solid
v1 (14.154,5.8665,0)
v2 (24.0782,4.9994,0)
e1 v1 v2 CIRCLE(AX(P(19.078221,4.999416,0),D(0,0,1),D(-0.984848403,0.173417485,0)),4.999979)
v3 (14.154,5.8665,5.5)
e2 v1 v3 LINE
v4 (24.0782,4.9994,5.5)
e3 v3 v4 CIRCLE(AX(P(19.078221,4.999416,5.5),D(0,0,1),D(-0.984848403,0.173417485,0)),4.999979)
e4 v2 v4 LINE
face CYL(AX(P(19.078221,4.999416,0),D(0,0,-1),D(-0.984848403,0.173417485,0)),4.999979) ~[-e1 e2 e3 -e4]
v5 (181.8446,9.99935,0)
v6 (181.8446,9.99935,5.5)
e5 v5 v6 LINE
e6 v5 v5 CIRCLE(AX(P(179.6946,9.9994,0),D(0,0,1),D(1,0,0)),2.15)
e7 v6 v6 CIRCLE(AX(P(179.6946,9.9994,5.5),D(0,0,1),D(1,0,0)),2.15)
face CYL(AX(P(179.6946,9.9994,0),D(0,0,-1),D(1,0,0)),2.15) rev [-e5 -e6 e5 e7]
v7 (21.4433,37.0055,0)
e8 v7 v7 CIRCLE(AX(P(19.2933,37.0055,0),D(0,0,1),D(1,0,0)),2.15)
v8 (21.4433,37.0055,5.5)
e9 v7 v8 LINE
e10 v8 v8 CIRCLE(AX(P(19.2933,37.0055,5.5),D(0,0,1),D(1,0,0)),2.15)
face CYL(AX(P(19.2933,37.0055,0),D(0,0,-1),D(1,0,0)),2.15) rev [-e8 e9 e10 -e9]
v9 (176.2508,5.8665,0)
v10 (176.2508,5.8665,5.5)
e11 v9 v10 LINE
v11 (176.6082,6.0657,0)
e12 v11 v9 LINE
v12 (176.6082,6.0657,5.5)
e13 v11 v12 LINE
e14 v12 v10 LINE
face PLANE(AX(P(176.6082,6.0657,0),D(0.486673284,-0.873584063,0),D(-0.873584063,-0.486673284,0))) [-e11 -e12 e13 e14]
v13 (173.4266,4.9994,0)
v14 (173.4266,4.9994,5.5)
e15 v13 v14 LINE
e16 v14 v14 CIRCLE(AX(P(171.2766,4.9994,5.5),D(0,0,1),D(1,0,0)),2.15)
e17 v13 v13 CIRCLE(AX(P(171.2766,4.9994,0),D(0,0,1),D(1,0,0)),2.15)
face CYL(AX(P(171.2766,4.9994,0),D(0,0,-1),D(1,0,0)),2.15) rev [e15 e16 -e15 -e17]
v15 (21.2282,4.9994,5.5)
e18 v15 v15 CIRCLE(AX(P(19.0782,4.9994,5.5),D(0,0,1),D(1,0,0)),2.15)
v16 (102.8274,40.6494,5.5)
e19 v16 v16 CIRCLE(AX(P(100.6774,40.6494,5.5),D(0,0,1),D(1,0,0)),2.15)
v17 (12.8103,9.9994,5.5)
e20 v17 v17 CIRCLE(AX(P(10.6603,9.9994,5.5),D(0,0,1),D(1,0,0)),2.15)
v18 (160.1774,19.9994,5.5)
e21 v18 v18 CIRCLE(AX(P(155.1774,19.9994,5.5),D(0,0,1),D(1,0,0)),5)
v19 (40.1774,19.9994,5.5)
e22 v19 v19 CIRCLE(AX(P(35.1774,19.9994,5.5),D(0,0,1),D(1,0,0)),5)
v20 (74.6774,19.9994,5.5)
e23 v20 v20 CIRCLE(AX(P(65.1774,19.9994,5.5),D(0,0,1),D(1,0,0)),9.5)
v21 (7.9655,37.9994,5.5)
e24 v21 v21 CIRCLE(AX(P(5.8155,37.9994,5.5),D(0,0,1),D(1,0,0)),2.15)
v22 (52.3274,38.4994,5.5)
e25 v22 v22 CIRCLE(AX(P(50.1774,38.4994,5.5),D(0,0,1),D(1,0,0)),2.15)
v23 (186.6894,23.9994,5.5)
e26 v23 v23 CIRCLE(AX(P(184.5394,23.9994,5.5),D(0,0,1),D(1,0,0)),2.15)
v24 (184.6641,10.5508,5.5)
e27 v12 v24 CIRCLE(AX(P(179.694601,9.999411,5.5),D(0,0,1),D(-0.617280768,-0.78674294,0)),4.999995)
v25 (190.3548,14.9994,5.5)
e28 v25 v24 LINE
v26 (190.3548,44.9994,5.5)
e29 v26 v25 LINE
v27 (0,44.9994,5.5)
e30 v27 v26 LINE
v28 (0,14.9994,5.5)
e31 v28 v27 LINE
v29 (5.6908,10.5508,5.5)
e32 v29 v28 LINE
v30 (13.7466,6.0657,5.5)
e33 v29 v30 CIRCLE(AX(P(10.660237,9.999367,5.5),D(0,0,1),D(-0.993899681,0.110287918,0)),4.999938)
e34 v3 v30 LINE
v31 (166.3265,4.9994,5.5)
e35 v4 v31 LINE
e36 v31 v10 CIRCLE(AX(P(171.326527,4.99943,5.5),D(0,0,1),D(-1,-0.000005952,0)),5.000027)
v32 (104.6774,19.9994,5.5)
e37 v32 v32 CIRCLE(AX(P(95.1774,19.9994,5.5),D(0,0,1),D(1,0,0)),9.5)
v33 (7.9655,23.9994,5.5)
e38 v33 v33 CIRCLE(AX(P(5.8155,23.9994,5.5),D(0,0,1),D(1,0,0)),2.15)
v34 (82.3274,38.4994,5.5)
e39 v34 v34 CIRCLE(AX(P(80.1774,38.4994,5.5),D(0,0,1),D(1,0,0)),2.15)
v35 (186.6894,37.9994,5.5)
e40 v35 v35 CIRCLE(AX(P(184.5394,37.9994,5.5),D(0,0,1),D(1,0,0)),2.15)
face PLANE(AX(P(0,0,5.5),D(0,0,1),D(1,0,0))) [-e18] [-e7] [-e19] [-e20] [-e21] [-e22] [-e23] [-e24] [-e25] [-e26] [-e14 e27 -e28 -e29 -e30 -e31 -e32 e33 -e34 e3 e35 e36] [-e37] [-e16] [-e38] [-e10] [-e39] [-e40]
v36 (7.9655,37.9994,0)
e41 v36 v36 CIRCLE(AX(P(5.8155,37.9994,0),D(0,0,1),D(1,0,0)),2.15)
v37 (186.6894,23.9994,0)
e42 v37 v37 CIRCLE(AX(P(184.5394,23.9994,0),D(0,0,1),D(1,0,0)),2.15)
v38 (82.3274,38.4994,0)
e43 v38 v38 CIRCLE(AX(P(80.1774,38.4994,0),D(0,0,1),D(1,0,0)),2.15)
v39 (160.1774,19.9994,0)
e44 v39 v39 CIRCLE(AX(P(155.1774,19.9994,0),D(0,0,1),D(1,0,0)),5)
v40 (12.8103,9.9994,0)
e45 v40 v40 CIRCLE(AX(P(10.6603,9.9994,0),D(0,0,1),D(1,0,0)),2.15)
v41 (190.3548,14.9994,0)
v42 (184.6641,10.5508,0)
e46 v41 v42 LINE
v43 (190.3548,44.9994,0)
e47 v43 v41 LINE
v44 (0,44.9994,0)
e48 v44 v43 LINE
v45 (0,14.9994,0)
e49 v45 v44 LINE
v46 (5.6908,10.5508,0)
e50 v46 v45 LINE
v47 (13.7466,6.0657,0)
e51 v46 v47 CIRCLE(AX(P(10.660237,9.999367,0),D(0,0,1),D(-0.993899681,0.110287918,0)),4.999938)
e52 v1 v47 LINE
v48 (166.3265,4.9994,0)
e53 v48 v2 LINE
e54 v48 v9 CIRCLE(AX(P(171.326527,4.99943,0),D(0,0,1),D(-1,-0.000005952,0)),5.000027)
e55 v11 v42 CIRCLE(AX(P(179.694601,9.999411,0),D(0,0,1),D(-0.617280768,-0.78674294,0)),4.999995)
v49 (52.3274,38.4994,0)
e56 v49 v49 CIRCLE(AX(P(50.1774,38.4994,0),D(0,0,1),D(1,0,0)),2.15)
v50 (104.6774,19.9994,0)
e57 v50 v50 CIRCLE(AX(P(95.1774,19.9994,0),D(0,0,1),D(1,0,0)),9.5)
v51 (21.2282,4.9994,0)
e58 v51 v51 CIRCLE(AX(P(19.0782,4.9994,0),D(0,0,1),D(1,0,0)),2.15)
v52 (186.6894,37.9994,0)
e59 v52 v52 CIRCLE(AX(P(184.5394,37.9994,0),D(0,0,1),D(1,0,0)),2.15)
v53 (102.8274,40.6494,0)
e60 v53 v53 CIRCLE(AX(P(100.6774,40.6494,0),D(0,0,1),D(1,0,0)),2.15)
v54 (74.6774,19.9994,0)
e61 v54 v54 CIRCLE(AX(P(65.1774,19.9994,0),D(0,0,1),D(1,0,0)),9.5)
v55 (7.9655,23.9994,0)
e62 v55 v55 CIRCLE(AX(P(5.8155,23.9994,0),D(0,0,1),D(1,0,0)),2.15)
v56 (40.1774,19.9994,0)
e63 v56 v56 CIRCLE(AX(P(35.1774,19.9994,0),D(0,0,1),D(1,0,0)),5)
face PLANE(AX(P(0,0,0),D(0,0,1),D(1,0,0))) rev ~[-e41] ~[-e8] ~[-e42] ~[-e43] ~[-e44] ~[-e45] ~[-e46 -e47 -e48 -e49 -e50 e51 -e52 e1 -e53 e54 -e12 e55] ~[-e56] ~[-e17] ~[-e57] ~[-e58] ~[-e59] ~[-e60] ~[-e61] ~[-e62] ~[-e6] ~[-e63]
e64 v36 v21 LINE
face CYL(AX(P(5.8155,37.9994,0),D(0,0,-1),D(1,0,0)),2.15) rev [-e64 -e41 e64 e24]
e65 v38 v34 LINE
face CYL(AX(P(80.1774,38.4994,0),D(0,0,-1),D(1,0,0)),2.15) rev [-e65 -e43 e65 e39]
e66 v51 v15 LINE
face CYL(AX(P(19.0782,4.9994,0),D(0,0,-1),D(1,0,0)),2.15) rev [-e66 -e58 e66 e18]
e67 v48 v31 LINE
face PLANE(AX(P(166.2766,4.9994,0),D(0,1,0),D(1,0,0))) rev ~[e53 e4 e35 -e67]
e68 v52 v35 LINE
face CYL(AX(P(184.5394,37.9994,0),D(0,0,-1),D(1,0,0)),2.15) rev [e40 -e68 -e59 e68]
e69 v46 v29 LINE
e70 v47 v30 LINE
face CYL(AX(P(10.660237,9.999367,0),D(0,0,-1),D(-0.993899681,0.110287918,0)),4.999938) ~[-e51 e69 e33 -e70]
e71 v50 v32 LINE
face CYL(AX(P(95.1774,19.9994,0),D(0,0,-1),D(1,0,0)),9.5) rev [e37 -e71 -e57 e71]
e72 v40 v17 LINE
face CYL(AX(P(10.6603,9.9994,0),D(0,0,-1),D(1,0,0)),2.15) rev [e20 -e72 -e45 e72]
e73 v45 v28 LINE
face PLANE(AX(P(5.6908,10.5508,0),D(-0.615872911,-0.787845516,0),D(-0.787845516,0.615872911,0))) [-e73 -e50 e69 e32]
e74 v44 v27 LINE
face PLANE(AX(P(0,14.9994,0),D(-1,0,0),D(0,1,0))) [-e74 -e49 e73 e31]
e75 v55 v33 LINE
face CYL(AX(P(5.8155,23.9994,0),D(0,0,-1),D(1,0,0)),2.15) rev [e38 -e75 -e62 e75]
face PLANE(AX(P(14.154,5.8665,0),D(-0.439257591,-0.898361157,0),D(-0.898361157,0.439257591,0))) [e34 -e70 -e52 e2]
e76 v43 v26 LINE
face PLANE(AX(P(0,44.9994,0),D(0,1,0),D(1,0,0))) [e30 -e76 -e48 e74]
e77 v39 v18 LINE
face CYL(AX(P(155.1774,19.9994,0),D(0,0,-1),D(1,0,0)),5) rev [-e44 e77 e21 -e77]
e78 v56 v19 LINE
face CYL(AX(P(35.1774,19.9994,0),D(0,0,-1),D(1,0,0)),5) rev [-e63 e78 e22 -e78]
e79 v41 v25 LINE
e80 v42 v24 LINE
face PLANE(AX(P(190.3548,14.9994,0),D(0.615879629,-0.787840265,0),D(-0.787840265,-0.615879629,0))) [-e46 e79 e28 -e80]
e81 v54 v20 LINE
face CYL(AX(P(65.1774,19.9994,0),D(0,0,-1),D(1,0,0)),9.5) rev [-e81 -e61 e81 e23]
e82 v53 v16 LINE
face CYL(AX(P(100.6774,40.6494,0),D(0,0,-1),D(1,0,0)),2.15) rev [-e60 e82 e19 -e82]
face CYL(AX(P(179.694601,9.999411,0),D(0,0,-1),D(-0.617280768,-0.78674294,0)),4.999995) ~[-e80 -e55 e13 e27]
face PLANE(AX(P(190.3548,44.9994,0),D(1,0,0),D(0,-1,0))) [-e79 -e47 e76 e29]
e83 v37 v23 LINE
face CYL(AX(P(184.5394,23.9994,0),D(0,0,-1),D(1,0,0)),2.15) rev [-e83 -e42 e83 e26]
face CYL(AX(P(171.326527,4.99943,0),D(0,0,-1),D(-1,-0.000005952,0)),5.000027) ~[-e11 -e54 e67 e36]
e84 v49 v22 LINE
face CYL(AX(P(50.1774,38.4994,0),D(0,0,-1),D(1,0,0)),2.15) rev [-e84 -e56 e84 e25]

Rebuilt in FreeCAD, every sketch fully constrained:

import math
import FreeCAD as App
import Part
import Sketcher

doc = App.newDocument("Part")
body = doc.addObject("PartDesign::Body", "Body")

# Sketch on XY plane
sketch1 = body.newObject("Sketcher::SketchObject", "Sketch")
sketch1.AttachmentSupport = (doc.getObject("XY_Plane"), [""])
sketch1.MapMode = "FlatFace"
sketch1.addGeometry(Part.LineSegment(App.Vector(190.35, 15, 0), App.Vector(190.35, 45, 0)), False)
sketch1.addGeometry(Part.LineSegment(App.Vector(190.35, 45, 0), App.Vector(0, 45, 0)), False)
sketch1.addGeometry(Part.LineSegment(App.Vector(0, 45, 0), App.Vector(0, 15, 0)), False)
sketch1.addGeometry(Part.LineSegment(App.Vector(0, 15, 0), App.Vector(5.69, 10.55, 0)), False)
sketch1.addGeometry(Part.ArcOfCircle(Part.Circle(App.Vector(10.66, 10, 0), App.Vector(0, 0, 1), 5), math.radians(174), math.radians(308)), False)
sketch1.addGeometry(Part.LineSegment(App.Vector(13.75, 6.07, 0), App.Vector(14.15, 5.87, 0)), False)
sketch1.addGeometry(Part.ArcOfCircle(Part.Circle(App.Vector(19.08, 5, 0), App.Vector(0, 0, 1), 5), math.radians(170), math.radians(360)), False)
sketch1.addGeometry(Part.LineSegment(App.Vector(24.08, 5, 0), App.Vector(166.33, 5, 0)), False)
sketch1.addGeometry(Part.ArcOfCircle(Part.Circle(App.Vector(171.33, 5, 0), App.Vector(0, 0, 1), 5), math.radians(180), math.radians(370)), False)
sketch1.addGeometry(Part.LineSegment(App.Vector(176.25, 5.87, 0), App.Vector(176.61, 6.07, 0)), False)
sketch1.addGeometry(Part.ArcOfCircle(Part.Circle(App.Vector(179.69, 10, 0), App.Vector(0, 0, 1), 5), math.radians(-128), math.radians(6)), False)
sketch1.addGeometry(Part.LineSegment(App.Vector(184.66, 10.55, 0), App.Vector(190.35, 15, 0)), False)
sketch1.addGeometry(Part.Circle(App.Vector(19.08, 5, 0), App.Vector(0, 0, 1), 2.15), False)
sketch1.addGeometry(Part.Circle(App.Vector(10.66, 10, 0), App.Vector(0, 0, 1), 2.15), False)
sketch1.addGeometry(Part.Circle(App.Vector(171.28, 5, 0), App.Vector(0, 0, 1), 2.15), False)
sketch1.addGeometry(Part.Circle(App.Vector(179.69, 10, 0), App.Vector(0, 0, 1), 2.15), False)
sketch1.addGeometry(Part.Circle(App.Vector(5.82, 24, 0), App.Vector(0, 0, 1), 2.15), False)
sketch1.addGeometry(Part.Circle(App.Vector(5.82, 38, 0), App.Vector(0, 0, 1), 2.15), False)
sketch1.addGeometry(Part.Circle(App.Vector(19.29, 37.01, 0), App.Vector(0, 0, 1), 2.15), False)
sketch1.addGeometry(Part.Circle(App.Vector(50.18, 38.5, 0), App.Vector(0, 0, 1), 2.15), False)
sketch1.addGeometry(Part.Circle(App.Vector(80.18, 38.5, 0), App.Vector(0, 0, 1), 2.15), False)
sketch1.addGeometry(Part.Circle(App.Vector(184.54, 24, 0), App.Vector(0, 0, 1), 2.15), False)
sketch1.addGeometry(Part.Circle(App.Vector(100.68, 40.65, 0), App.Vector(0, 0, 1), 2.15), False)
sketch1.addGeometry(Part.Circle(App.Vector(184.54, 38, 0), App.Vector(0, 0, 1), 2.15), False)
sketch1.addGeometry(Part.Circle(App.Vector(155.18, 20, 0), App.Vector(0, 0, 1), 5), False)
sketch1.addGeometry(Part.Circle(App.Vector(95.18, 20, 0), App.Vector(0, 0, 1), 9.5), False)
sketch1.addGeometry(Part.Circle(App.Vector(65.18, 20, 0), App.Vector(0, 0, 1), 9.5), False)
sketch1.addGeometry(Part.Circle(App.Vector(35.18, 20, 0), App.Vector(0, 0, 1), 5), False)
sketch1.addConstraint(Sketcher.Constraint("Coincident", 0, 2, 1, 1))
sketch1.addConstraint(Sketcher.Constraint("Coincident", 1, 2, 2, 1))
sketch1.addConstraint(Sketcher.Constraint("Coincident", 2, 2, 3, 1))
sketch1.addConstraint(Sketcher.Constraint("Coincident", 3, 2, 4, 1))
sketch1.addConstraint(Sketcher.Constraint("Coincident", 4, 2, 5, 1))
sketch1.addConstraint(Sketcher.Constraint("Coincident", 5, 2, 6, 1))
sketch1.addConstraint(Sketcher.Constraint("Coincident", 6, 2, 7, 1))
sketch1.addConstraint(Sketcher.Constraint("Coincident", 7, 2, 8, 1))
sketch1.addConstraint(Sketcher.Constraint("Coincident", 8, 2, 9, 1))
sketch1.addConstraint(Sketcher.Constraint("Coincident", 9, 2, 10, 1))
sketch1.addConstraint(Sketcher.Constraint("Coincident", 10, 2, 11, 1))
sketch1.addConstraint(Sketcher.Constraint("Coincident", 11, 2, 0, 1))
sketch1.addConstraint(Sketcher.Constraint("Vertical", 0))
sketch1.addConstraint(Sketcher.Constraint("Horizontal", 1))
sketch1.addConstraint(Sketcher.Constraint("Vertical", 2))
sketch1.addConstraint(Sketcher.Constraint("Horizontal", 7))
sketch1.addConstraint(Sketcher.Constraint("Coincident", 12, 3, 6, 3))
sketch1.addConstraint(Sketcher.Constraint("Coincident", 13, 3, 4, 3))
sketch1.addConstraint(Sketcher.Constraint("Coincident", 15, 3, 10, 3))
sketch1.addConstraint(Sketcher.Constraint("Equal", 4, 6))
sketch1.addConstraint(Sketcher.Constraint("Equal", 6, 8))
sketch1.addConstraint(Sketcher.Constraint("Equal", 8, 10))
sketch1.addConstraint(Sketcher.Constraint("Equal", 12, 13))
sketch1.addConstraint(Sketcher.Constraint("Equal", 13, 14))
sketch1.addConstraint(Sketcher.Constraint("Equal", 14, 15))
sketch1.addConstraint(Sketcher.Constraint("Equal", 15, 16))
sketch1.addConstraint(Sketcher.Constraint("Equal", 16, 17))
sketch1.addConstraint(Sketcher.Constraint("Equal", 17, 18))
sketch1.addConstraint(Sketcher.Constraint("Equal", 18, 19))
sketch1.addConstraint(Sketcher.Constraint("Equal", 19, 20))
sketch1.addConstraint(Sketcher.Constraint("Equal", 20, 21))
sketch1.addConstraint(Sketcher.Constraint("Equal", 21, 22))
sketch1.addConstraint(Sketcher.Constraint("Equal", 22, 23))
sketch1.addConstraint(Sketcher.Constraint("Equal", 10, 24))
sketch1.addConstraint(Sketcher.Constraint("Equal", 25, 26))
sketch1.addConstraint(Sketcher.Constraint("Equal", 24, 27))
sketch1.addConstraint(Sketcher.Constraint("PointOnObject", 1, 2, -2))
sketch1.addConstraint(Sketcher.Constraint("Horizontal", 6, 3, 8, 3))
sketch1.addConstraint(Sketcher.Constraint("Horizontal", 4, 3, 10, 3))
sketch1.addConstraint(Sketcher.Constraint("Horizontal", 12, 3, 14, 3))
sketch1.addConstraint(Sketcher.Constraint("Horizontal", 19, 3, 20, 3))
sketch1.addConstraint(Sketcher.Constraint("Horizontal", 16, 3, 21, 3))
sketch1.addConstraint(Sketcher.Constraint("Horizontal", 17, 3, 23, 3))
sketch1.addConstraint(Sketcher.Constraint("Horizontal", 24, 3, 25, 3))
sketch1.addConstraint(Sketcher.Constraint("Horizontal", 25, 3, 26, 3))
sketch1.addConstraint(Sketcher.Constraint("Horizontal", 26, 3, 27, 3))
sketch1.addConstraint(Sketcher.Constraint("Horizontal", 14, 3, 6, 2))
sketch1.addConstraint(Sketcher.Constraint("Horizontal", 5, 2, 8, 2))
sketch1.addConstraint(Sketcher.Constraint("Horizontal", 4, 2, 9, 2))
sketch1.addConstraint(Sketcher.Constraint("Horizontal", 3, 2, 10, 2))
sketch1.addConstraint(Sketcher.Constraint("Horizontal", 2, 2, 11, 2))
sketch1.addConstraint(Sketcher.Constraint("Vertical", 16, 3, 17, 3))
sketch1.addConstraint(Sketcher.Constraint("Vertical", 21, 3, 23, 3))
sketch1.addConstraint(Sketcher.Constraint("Equal", 3, 11))
sketch1.addConstraint(Sketcher.Constraint("Diameter", 24, 10.0))
sketch1.addConstraint(Sketcher.Constraint("Diameter", 25, 19.0))
sketch1.addConstraint(Sketcher.Constraint("DistanceY", 6, 3, 16, 3, 19.0))
sketch1.addConstraint(Sketcher.Constraint("DistanceY", 10, 3, 24, 3, 10.0))
sketch1.addConstraint(Sketcher.Constraint("DistanceY", 6, 3, 2, 2, 10.0))
sketch1.addConstraint(Sketcher.Constraint("Diameter", 12, 4.3))
sketch1.addConstraint(Sketcher.Constraint("DistanceY", 0, 1, 0, 2, 30.0))
sketch1.addConstraint(Sketcher.Constraint("DistanceY", 6, 3, 4, 3, 5.0))
sketch1.addConstraint(Sketcher.Constraint("DistanceY", 16, 3, 17, 3, 14.0))
sketch1.addConstraint(Sketcher.Constraint("DistanceX", 19, 3, 20, 3, 30.0))
sketch1.addConstraint(Sketcher.Constraint("DistanceX", 20, 3, 25, 3, 15.0))
sketch1.addConstraint(Sketcher.Constraint("DistanceX", 25, 3, 24, 3, 60.0))
sketch1.addConstraint(Sketcher.Constraint("DistanceX", 26, 3, 20, 3, 15.0))
sketch1.addConstraint(Sketcher.Constraint("DistanceX", 27, 3, 19, 3, 15.0))
sketch1.addConstraint(Sketcher.Constraint("DistanceY", 17, 3, 19, 3, 0.5))
sketch1.addConstraint(Sketcher.Constraint("DistanceX", 20, 3, 22, 3, 20.5))
sketch1.addConstraint(Sketcher.Constraint("DistanceX", 14, 3, 8, 3, 0.05))
sketch1.addConstraint(Sketcher.Constraint("DistanceY", 20, 3, 22, 3, 2.15))
sketch1.addConstraint(Sketcher.Constraint("DistanceX", 1, 2, 1, 1, 190.3548))
sketch1.addConstraint(Sketcher.Constraint("DistanceX", 7, 1, 7, 2, 142.2483))
sketch1.addConstraint(Sketcher.Constraint("DistanceX", -1, 1, 5, 2, 14.154))
sketch1.addConstraint(Sketcher.Constraint("DistanceX", -1, 1, 10, 2, 184.664))
sketch1.addConstraint(Sketcher.Constraint("DistanceX", 4, 3, 6, 3, 8.418))
sketch1.addConstraint(Sketcher.Constraint("DistanceX", 8, 3, 10, 3, 8.368))
sketch1.addConstraint(Sketcher.Constraint("DistanceX", 16, 3, 14, 3, 165.461))
sketch1.addConstraint(Sketcher.Constraint("DistanceY", 18, 3, 17, 3, 0.994))
sketch1.addConstraint(Sketcher.Constraint("DistanceX", 4, 3, 18, 3, 8.633))
sketch1.addConstraint(Sketcher.Constraint("DistanceX", 18, 3, 19, 3, 30.884))
sketch1.addConstraint(Sketcher.Constraint("DistanceX", 8, 3, 21, 3, 13.213))
sketch1.addConstraint(Sketcher.Constraint("DistanceX", 9, 2, 10, 2, 8.056))
sketch1.addConstraint(Sketcher.Constraint("DistanceY", -1, 1, 4, 3, 9.9994))
pad1 = body.newObject("PartDesign::Pad", "Pad")
pad1.Profile = sketch1
pad1.Length = 5.5

doc.recompute()
